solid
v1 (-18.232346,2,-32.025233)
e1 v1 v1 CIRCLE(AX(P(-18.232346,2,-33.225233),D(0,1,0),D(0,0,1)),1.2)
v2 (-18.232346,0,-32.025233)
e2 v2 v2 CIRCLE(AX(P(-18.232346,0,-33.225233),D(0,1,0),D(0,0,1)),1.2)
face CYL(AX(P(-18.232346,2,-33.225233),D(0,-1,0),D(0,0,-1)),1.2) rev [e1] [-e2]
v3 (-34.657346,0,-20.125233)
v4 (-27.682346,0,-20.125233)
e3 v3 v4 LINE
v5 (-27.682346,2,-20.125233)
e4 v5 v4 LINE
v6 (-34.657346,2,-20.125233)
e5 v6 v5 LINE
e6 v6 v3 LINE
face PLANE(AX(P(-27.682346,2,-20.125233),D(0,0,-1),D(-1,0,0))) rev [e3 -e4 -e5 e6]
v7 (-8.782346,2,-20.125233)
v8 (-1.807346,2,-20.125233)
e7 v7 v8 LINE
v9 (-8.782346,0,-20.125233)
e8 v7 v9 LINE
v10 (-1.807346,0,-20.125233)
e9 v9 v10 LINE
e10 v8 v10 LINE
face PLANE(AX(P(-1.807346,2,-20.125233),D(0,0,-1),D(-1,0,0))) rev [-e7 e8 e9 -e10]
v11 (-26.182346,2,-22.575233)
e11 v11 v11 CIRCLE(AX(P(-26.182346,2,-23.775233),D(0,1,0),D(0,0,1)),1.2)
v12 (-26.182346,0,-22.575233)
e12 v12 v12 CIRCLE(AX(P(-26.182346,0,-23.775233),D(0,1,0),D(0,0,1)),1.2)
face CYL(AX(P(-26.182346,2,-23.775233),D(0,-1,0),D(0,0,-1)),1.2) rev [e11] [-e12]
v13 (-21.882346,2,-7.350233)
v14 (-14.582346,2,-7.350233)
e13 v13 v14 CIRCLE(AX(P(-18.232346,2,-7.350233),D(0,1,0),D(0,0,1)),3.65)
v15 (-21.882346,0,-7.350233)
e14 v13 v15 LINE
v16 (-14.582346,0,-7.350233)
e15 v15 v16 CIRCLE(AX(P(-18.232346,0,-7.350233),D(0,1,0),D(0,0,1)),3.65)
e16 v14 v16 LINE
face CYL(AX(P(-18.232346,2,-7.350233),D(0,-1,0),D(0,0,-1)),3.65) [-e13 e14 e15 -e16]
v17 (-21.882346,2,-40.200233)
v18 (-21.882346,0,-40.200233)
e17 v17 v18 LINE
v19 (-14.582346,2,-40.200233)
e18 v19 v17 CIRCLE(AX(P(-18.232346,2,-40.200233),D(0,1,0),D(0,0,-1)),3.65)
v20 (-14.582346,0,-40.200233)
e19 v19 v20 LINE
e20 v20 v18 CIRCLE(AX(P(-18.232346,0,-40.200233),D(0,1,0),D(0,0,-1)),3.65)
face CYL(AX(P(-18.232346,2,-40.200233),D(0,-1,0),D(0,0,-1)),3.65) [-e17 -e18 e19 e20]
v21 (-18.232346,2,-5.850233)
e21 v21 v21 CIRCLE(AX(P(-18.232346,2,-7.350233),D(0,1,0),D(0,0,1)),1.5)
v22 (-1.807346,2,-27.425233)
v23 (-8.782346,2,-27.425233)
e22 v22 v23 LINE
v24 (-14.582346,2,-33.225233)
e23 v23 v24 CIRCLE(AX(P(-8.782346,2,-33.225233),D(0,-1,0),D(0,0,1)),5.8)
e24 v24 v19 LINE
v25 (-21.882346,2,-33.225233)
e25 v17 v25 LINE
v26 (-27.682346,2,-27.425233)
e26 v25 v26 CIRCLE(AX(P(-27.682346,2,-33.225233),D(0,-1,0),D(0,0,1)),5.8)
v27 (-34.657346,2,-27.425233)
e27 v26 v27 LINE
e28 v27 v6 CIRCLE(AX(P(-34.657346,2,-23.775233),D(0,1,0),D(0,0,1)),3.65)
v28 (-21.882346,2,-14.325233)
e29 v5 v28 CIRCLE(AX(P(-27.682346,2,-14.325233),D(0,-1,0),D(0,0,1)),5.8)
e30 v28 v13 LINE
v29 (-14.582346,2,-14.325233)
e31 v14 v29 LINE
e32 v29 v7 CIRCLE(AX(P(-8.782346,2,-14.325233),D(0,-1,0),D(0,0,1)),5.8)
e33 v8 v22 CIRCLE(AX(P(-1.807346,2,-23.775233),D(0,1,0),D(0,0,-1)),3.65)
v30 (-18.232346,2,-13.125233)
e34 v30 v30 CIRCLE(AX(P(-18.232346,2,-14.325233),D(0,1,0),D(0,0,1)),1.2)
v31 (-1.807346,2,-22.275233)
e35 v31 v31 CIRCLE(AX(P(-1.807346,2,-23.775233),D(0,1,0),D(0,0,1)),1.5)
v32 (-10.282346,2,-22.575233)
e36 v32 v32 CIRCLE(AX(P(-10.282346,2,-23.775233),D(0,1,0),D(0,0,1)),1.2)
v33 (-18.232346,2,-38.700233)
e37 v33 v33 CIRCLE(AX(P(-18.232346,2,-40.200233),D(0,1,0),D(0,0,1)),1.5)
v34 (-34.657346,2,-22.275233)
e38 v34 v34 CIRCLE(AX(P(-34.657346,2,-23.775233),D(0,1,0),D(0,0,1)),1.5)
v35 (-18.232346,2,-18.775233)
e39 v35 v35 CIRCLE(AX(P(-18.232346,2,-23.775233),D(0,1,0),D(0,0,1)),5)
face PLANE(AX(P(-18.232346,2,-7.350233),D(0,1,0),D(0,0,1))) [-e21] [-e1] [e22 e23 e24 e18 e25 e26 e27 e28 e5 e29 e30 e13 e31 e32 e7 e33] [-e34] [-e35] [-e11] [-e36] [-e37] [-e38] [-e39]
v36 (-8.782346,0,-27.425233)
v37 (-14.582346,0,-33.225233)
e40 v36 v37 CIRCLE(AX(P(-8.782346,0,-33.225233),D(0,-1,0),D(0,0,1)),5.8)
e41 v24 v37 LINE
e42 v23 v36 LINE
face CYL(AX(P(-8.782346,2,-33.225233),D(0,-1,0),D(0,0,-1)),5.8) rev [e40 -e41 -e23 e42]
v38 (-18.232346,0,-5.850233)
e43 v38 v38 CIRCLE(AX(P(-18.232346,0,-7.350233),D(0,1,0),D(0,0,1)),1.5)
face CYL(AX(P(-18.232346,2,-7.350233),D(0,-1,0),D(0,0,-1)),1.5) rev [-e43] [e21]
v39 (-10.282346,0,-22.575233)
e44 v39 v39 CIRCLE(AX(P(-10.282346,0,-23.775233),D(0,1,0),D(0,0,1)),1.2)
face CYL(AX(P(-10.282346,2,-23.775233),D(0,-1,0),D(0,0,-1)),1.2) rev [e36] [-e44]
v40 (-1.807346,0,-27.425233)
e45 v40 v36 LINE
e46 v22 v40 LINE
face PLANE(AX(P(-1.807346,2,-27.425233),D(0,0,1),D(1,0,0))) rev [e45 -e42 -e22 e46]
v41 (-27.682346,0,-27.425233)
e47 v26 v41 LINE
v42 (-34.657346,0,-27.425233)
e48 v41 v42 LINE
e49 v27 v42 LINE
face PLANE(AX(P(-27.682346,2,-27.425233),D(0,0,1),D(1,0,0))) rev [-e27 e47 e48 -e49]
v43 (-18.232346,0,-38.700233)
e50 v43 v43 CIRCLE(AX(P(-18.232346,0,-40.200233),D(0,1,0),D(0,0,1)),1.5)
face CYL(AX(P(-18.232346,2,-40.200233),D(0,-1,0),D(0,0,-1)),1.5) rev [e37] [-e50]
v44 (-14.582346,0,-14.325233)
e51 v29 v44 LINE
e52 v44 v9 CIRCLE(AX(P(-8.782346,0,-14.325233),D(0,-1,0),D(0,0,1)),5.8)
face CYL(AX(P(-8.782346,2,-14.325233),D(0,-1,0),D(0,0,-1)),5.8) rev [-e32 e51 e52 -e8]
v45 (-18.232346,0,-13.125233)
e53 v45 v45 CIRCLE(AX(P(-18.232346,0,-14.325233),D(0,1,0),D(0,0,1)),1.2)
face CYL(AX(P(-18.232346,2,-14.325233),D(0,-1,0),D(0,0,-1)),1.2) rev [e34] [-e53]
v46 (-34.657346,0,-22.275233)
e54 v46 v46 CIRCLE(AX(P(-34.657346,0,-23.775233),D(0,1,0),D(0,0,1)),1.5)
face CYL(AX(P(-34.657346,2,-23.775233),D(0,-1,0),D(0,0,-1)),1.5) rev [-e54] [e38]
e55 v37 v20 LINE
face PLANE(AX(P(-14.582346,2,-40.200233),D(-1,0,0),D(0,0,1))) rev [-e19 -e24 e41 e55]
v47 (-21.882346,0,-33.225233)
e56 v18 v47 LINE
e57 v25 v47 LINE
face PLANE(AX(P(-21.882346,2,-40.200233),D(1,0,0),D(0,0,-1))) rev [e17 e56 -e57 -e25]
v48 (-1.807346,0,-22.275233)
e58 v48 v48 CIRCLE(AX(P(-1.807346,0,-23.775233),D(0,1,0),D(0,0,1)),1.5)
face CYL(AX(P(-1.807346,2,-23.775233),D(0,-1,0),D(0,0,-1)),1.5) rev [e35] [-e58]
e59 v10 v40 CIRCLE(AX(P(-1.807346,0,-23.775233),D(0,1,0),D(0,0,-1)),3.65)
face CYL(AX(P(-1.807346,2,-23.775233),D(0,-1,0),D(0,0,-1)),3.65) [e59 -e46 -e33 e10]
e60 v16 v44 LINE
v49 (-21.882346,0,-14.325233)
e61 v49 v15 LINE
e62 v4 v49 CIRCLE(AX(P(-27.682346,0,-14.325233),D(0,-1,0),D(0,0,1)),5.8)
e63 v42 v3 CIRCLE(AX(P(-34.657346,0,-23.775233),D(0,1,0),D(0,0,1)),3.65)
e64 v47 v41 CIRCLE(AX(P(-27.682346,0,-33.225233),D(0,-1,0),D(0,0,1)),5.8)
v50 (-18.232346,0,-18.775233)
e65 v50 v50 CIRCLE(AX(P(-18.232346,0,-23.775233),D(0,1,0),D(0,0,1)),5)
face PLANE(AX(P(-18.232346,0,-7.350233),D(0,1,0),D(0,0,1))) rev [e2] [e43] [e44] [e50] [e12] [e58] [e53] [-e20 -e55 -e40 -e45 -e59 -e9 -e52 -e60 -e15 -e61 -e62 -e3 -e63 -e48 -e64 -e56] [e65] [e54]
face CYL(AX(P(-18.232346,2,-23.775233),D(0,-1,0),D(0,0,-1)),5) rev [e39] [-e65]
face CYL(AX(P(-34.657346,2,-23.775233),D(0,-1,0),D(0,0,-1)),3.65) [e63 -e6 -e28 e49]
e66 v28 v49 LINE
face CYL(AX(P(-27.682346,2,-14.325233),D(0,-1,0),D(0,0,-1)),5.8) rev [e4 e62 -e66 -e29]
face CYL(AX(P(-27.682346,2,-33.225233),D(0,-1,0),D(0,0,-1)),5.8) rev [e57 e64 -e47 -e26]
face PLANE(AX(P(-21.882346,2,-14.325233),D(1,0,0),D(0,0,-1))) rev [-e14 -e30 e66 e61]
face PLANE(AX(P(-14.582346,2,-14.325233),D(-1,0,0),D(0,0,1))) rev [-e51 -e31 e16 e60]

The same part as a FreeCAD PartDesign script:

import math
import FreeCAD as App
import Part
import Sketcher
from FreeCAD import Vector

doc = App.newDocument("Part")
body = doc.addObject("PartDesign::Body", "Body")

# Sketch on XZ plane
sketch1 = doc.addObject("Sketcher::SketchObject", "Sketch")
body.addObject(sketch1)
sketch1.AttachmentSupport = (doc.XZ_Plane, [""])
sketch1.MapMode = "FlatFace"
sketch1.addGeometry([
    Part.LineSegment(Vector(-8.8, -20.1, 0), Vector(-1.8, -20.1, 0)),  # 0
    Part.ArcOfCircle(Part.Circle(Vector(-1.8, -23.8, 0), Vector(0, 0, 1), 3.6), math.radians(-90), math.radians(90)),  # 1
    Part.LineSegment(Vector(-1.8, -27.4, 0), Vector(-8.8, -27.4, 0)),  # 2
    Part.ArcOfCircle(Part.Circle(Vector(-8.8, -33.2, 0), Vector(0, 0, 1), 5.8), math.radians(90), math.radians(180)),  # 3
    Part.LineSegment(Vector(-14.6, -33.2, 0), Vector(-14.6, -40.2, 0)),  # 4
    Part.ArcOfCircle(Part.Circle(Vector(-18.2, -40.2, 0), Vector(0, 0, 1), 3.6), math.radians(180), math.radians(360)),  # 5
    Part.LineSegment(Vector(-21.9, -40.2, 0), Vector(-21.9, -33.2, 0)),  # 6
    Part.ArcOfCircle(Part.Circle(Vector(-27.7, -33.2, 0), Vector(0, 0, 1), 5.8), math.radians(0), math.radians(90)),  # 7
    Part.LineSegment(Vector(-27.7, -27.4, 0), Vector(-34.7, -27.4, 0)),  # 8
    Part.ArcOfCircle(Part.Circle(Vector(-34.7, -23.8, 0), Vector(0, 0, 1), 3.6), math.radians(90), math.radians(270)),  # 9
    Part.LineSegment(Vector(-34.7, -20.1, 0), Vector(-27.7, -20.1, 0)),  # 10
    Part.ArcOfCircle(Part.Circle(Vector(-27.7, -14.3, 0), Vector(0, 0, 1), 5.8), math.radians(-90), math.radians(0)),  # 11
    Part.LineSegment(Vector(-21.9, -14.3, 0), Vector(-21.9, -7.4, 0)),  # 12
    Part.ArcOfCircle(Part.Circle(Vector(-18.2, -7.4, 0), Vector(0, 0, 1), 3.6), math.radians(0), math.radians(180)),  # 13
    Part.LineSegment(Vector(-14.6, -7.4, 0), Vector(-14.6, -14.3, 0)),  # 14
    Part.ArcOfCircle(Part.Circle(Vector(-8.8, -14.3, 0), Vector(0, 0, 1), 5.8), math.radians(180), math.radians(270)),  # 15
    Part.Circle(Vector(-18.2, -7.4, 0), Vector(0, 0, 1), 1.5),  # 16
    Part.Circle(Vector(-18.2, -14.3, 0), Vector(0, 0, 1), 1.2),  # 17
    Part.Circle(Vector(-1.8, -23.8, 0), Vector(0, 0, 1), 1.5),  # 18
    Part.Circle(Vector(-10.3, -23.8, 0), Vector(0, 0, 1), 1.2),  # 19
    Part.Circle(Vector(-18.2, -23.8, 0), Vector(0, 0, 1), 5),  # 20
    Part.Circle(Vector(-26.2, -23.8, 0), Vector(0, 0, 1), 1.2),  # 21
    Part.Circle(Vector(-34.7, -23.8, 0), Vector(0, 0, 1), 1.5),  # 22
    Part.Circle(Vector(-18.2, -33.2, 0), Vector(0, 0, 1), 1.2),  # 23
    Part.Circle(Vector(-18.2, -40.2, 0), Vector(0, 0, 1), 1.5),  # 24
], False)
sketch1.addConstraint([
    Sketcher.Constraint("Tangent", 0, 2, 1, 2),
    Sketcher.Constraint("Tangent", 1, 1, 2, 1),
    Sketcher.Constraint("Tangent", 2, 2, 3, 1),
    Sketcher.Constraint("Tangent", 3, 2, 4, 1),
    Sketcher.Constraint("Tangent", 4, 2, 5, 2),
    Sketcher.Constraint("Tangent", 5, 1, 6, 1),
    Sketcher.Constraint("Tangent", 6, 2, 7, 1),
    Sketcher.Constraint("Tangent", 7, 2, 8, 1),
    Sketcher.Constraint("Tangent", 8, 2, 9, 2),
    Sketcher.Constraint("Tangent", 9, 1, 10, 1),
    Sketcher.Constraint("Tangent", 10, 2, 11, 1),
    Sketcher.Constraint("Tangent", 11, 2, 12, 1),
    Sketcher.Constraint("Tangent", 12, 2, 13, 2),
    Sketcher.Constraint("Tangent", 13, 1, 14, 1),
    Sketcher.Constraint("Tangent", 14, 2, 15, 1),
    Sketcher.Constraint("Tangent", 15, 2, 0, 1),
    Sketcher.Constraint("Horizontal", 0),
    Sketcher.Constraint("Horizontal", 2),
    Sketcher.Constraint("Vertical", 4),
    Sketcher.Constraint("Vertical", 6),
    Sketcher.Constraint("Horizontal", 8),
    Sketcher.Constraint("Horizontal", 10),
    Sketcher.Constraint("Vertical", 12),
    Sketcher.Constraint("Vertical", 14),
    Sketcher.Constraint("Coincident", 16, 3, 13, 3),
    Sketcher.Constraint("Coincident", 18, 3, 1, 3),
    Sketcher.Constraint("Coincident", 22, 3, 9, 3),
    Sketcher.Constraint("Coincident", 24, 3, 5, 3),
    Sketcher.Constraint("Equal", 1, 5),
    Sketcher.Constraint("Equal", 3, 7),
    Sketcher.Constraint("Equal", 5, 9),
    Sketcher.Constraint("Equal", 7, 11),
    Sketcher.Constraint("Equal", 9, 13),
    Sketcher.Constraint("Equal", 11, 15),
    Sketcher.Constraint("Equal", 16, 18),
    Sketcher.Constraint("Equal", 17, 19),
    Sketcher.Constraint("Equal", 19, 21),
    Sketcher.Constraint("Equal", 18, 22),
    Sketcher.Constraint("Equal", 21, 23),
    Sketcher.Constraint("Equal", 22, 24),
    Sketcher.Constraint("Horizontal", 3, 3, 7, 3),
    Sketcher.Constraint("Horizontal", 15, 3, 17, 3),
    Sketcher.Constraint("Horizontal", 18, 3, 19, 3),
    Sketcher.Constraint("Horizontal", 19, 3, 20, 3),
    Sketcher.Constraint("Horizontal", 20, 3, 21, 3),
    Sketcher.Constraint("Horizontal", 7, 3, 23, 3),
    Sketcher.Constraint("Vertical", 7, 3, 11, 3),
    Sketcher.Constraint("Vertical", 16, 3, 17, 3),
    Sketcher.Constraint("Vertical", 17, 3, 20, 3),
    Sketcher.Constraint("Vertical", 20, 3, 23, 3),
    Sketcher.Constraint("Equal", 2, 8),
    Sketcher.Constraint("Equal", 10, 4),
    Sketcher.Constraint("Equal", 6, 12),
    Sketcher.Constraint("Diameter", 16, 3.0),
    Sketcher.Constraint("Diameter", 20, 10.0),
    Sketcher.Constraint("Diameter", 17, 2.4),
    Sketcher.Constraint("Radius", 3, 5.8),
    Sketcher.Constraint("Radius", 1, 3.65),
    Sketcher.Constraint("DistanceX", 19, 3, 3, 3, 1.5),
    Sketcher.Constraint("DistanceX", 7, 3, 21, 3, 1.5),
    Sketcher.Constraint("DistanceX", 0, 1, 0, 2, 6.975),
    Sketcher.Constraint("DistanceX", 1, 3, -1, 1, 1.807346),
    Sketcher.Constraint("DistanceY", 1, 3, -1, 1, 23.775233),
])
pad1 = doc.addObject("PartDesign::Pad", "Pad")
body.addObject(pad1)
pad1.Profile = sketch1
pad1.Length = 2
pad1.Reversed = True

doc.recompute()
